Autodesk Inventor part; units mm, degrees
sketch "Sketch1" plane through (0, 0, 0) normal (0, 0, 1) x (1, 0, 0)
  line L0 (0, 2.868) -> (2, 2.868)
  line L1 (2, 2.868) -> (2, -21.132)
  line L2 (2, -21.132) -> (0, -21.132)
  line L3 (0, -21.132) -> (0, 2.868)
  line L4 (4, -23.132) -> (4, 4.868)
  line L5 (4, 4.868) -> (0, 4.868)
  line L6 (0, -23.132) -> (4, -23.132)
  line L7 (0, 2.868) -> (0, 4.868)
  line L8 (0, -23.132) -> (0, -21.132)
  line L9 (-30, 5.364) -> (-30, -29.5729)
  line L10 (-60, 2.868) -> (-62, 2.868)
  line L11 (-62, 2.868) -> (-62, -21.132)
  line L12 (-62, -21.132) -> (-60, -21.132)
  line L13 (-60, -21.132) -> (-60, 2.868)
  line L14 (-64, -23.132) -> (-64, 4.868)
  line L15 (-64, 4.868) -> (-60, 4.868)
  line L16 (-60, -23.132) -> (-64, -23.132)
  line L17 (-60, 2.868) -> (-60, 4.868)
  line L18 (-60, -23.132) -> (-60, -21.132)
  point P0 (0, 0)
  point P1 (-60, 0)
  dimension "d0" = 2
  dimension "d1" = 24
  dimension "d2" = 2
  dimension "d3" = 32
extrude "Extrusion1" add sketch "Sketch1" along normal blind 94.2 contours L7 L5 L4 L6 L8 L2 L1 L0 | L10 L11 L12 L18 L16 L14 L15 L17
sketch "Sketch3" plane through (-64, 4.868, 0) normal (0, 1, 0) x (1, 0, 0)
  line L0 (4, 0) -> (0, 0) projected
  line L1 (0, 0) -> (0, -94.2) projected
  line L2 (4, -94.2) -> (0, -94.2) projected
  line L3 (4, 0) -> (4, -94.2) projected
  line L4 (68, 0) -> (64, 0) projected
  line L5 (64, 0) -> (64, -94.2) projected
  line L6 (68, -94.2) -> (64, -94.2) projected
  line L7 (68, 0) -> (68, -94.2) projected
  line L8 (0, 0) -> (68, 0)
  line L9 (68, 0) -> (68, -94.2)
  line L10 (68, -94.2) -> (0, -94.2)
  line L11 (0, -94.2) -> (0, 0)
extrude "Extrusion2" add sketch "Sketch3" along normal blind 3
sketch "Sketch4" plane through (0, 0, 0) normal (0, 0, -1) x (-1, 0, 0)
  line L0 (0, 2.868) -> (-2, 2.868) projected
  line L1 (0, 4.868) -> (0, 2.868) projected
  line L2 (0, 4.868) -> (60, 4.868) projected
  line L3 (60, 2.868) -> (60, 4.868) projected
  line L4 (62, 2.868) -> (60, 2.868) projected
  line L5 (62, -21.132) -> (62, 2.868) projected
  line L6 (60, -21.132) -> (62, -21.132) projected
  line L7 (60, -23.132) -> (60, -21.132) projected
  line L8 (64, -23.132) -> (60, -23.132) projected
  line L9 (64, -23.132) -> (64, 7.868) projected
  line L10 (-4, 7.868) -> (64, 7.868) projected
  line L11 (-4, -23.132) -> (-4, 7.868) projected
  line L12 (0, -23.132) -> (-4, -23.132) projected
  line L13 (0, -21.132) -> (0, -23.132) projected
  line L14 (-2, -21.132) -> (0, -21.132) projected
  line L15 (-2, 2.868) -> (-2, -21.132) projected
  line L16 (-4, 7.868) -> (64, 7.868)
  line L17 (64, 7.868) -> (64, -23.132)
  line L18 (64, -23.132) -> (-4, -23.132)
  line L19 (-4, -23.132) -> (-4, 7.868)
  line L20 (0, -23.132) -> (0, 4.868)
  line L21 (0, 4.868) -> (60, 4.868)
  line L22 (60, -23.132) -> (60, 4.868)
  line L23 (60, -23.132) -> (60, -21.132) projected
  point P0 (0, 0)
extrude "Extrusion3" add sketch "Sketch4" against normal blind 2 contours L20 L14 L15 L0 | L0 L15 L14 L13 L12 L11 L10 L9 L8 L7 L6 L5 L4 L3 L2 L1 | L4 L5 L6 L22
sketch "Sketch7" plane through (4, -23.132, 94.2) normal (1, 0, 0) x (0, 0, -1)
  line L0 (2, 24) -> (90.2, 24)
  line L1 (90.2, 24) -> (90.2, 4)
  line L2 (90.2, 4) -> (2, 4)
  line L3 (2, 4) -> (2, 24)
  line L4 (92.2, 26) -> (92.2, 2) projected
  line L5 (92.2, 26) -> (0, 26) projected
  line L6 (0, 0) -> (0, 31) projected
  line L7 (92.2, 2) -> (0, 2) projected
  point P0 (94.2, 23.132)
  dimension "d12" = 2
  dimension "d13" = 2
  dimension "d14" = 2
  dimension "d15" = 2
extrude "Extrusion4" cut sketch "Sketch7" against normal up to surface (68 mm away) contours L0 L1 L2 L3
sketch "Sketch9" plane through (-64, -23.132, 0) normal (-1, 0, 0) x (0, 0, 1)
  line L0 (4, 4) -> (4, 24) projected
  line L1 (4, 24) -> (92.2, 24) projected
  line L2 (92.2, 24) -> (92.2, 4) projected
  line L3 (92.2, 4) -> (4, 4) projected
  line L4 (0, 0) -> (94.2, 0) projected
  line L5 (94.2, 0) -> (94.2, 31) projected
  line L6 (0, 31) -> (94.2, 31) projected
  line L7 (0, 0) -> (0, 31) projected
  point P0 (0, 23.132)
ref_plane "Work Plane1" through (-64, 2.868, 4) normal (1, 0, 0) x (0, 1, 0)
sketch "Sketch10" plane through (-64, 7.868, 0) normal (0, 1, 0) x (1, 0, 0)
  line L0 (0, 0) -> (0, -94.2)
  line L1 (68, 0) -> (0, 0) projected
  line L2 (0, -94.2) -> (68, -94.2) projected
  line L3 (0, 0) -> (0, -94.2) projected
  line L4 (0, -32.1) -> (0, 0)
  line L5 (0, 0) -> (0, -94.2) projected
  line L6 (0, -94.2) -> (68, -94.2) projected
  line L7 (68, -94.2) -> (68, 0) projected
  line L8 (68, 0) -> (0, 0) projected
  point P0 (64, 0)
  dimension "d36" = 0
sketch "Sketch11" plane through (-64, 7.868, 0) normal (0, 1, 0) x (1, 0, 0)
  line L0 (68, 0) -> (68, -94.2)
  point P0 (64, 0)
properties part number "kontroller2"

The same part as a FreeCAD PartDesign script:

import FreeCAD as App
import Part
import Sketcher
from FreeCAD import Vector

doc = App.newDocument("Part")
body = doc.addObject("PartDesign::Body", "Body")
body.AllowCompound = True

sketch1 = body.newObject("Sketcher::SketchObject", "Sketch")
sketch1.AttachmentSupport = (doc.getObject("XY_Plane"), [""])
sketch1.MapMode = "FlatFace"
sketch1.addGeometry([
    Part.LineSegment(Vector(0, 4.9, 0), Vector(0, 2.9, 0)),
    Part.LineSegment(Vector(0, 2.9, 0), Vector(2, 2.9, 0)),
    Part.LineSegment(Vector(2, 2.9, 0), Vector(2, -21.1, 0)),
    Part.LineSegment(Vector(2, -21.1, 0), Vector(0, -21.1, 0)),
    Part.LineSegment(Vector(0, -21.1, 0), Vector(0, -23.1, 0)),
    Part.LineSegment(Vector(0, -23.1, 0), Vector(4, -23.1, 0)),
    Part.LineSegment(Vector(4, -23.1, 0), Vector(4, 4.9, 0)),
    Part.LineSegment(Vector(4, 4.9, 0), Vector(0, 4.9, 0)),
    Part.LineSegment(Vector(-62, 2.9, 0), Vector(-60, 2.9, 0)),
    Part.LineSegment(Vector(-60, 2.9, 0), Vector(-60, 4.9, 0)),
    Part.LineSegment(Vector(-60, 4.9, 0), Vector(-64, 4.9, 0)),
    Part.LineSegment(Vector(-64, 4.9, 0), Vector(-64, -23.1, 0)),
    Part.LineSegment(Vector(-64, -23.1, 0), Vector(-60, -23.1, 0)),
    Part.LineSegment(Vector(-60, -23.1, 0), Vector(-60, -21.1, 0)),
    Part.LineSegment(Vector(-60, -21.1, 0), Vector(-62, -21.1, 0)),
    Part.LineSegment(Vector(-62, -21.1, 0), Vector(-62, 2.9, 0)),
], False)
sketch1.addConstraint([
    Sketcher.Constraint("Coincident", 0, 2, 1, 1),
    Sketcher.Constraint("Coincident", 1, 2, 2, 1),
    Sketcher.Constraint("Coincident", 2, 2, 3, 1),
    Sketcher.Constraint("Coincident", 3, 2, 4, 1),
    Sketcher.Constraint("Coincident", 4, 2, 5, 1),
    Sketcher.Constraint("Coincident", 5, 2, 6, 1),
    Sketcher.Constraint("Coincident", 6, 2, 7, 1),
    Sketcher.Constraint("Coincident", 7, 2, 0, 1),
    Sketcher.Constraint("Coincident", 8, 2, 9, 1),
    Sketcher.Constraint("Coincident", 9, 2, 10, 1),
    Sketcher.Constraint("Coincident", 10, 2, 11, 1),
    Sketcher.Constraint("Coincident", 11, 2, 12, 1),
    Sketcher.Constraint("Coincident", 12, 2, 13, 1),
    Sketcher.Constraint("Coincident", 13, 2, 14, 1),
    Sketcher.Constraint("Coincident", 14, 2, 15, 1),
    Sketcher.Constraint("Coincident", 15, 2, 8, 1),
    Sketcher.Constraint("Vertical", 0),
    Sketcher.Constraint("Horizontal", 1),
    Sketcher.Constraint("Vertical", 2),
    Sketcher.Constraint("Horizontal", 3),
    Sketcher.Constraint("Vertical", 4),
    Sketcher.Constraint("Horizontal", 5),
    Sketcher.Constraint("Vertical", 6),
    Sketcher.Constraint("Horizontal", 7),
    Sketcher.Constraint("Horizontal", 8),
    Sketcher.Constraint("Vertical", 9),
    Sketcher.Constraint("Horizontal", 10),
    Sketcher.Constraint("Vertical", 11),
    Sketcher.Constraint("Horizontal", 12),
    Sketcher.Constraint("Vertical", 13),
    Sketcher.Constraint("Horizontal", 14),
    Sketcher.Constraint("Vertical", 15),
    Sketcher.Constraint("PointOnObject", 0, 2, -2),
    Sketcher.Constraint("PointOnObject", 3, 2, -2),
    Sketcher.Constraint("Horizontal", 1, 2, 8, 2),
    Sketcher.Constraint("Horizontal", 7, 2, 9, 2),
    Sketcher.Constraint("Horizontal", 5, 2, 11, 2),
    Sketcher.Constraint("Horizontal", 3, 2, 13, 2),
    Sketcher.Constraint("Vertical", 9, 2, 12, 2),
    Sketcher.Constraint("Equal", 3, 8),
    Sketcher.Constraint("Equal", 7, 10),
    Sketcher.Constraint("Equal", 14, 0),
    Sketcher.Constraint("Equal", 0, 4),
    Sketcher.Constraint("DistanceX", 1, 1, 1, 2, 2.0),
    Sketcher.Constraint("DistanceY", 2, 2, 2, 1, 24.0),
    Sketcher.Constraint("DistanceX", 2, 2, 5, 2, 2.0),
    Sketcher.Constraint("DistanceX", 8, 2, -1, 1, 60.0),
    Sketcher.Constraint("DistanceY", -1, 1, 0, 2, 2.868),
])
pad1 = body.newObject("PartDesign::Pad", "Pad")
pad1.Profile = sketch1
pad1.Length = 94.2

sketch2 = body.newObject("Sketcher::SketchObject", "Sketch001")
sketch2.AttachmentSupport = (doc.getObject("XZ_Plane"), [""])
sketch2.MapMode = "FlatFace"
sketch2.AttachmentOffset = App.Placement(Vector(0, 0, -4.868), App.Rotation())
sketch2.addGeometry([
    Part.LineSegment(Vector(-64, 94, 0), Vector(4, 94, 0)),
    Part.LineSegment(Vector(4, 94, 0), Vector(4, 0, 0)),
    Part.LineSegment(Vector(4, 0, 0), Vector(-64, 0, 0)),
    Part.LineSegment(Vector(-64, 0, 0), Vector(-64, 94, 0)),
], False)
sketch2.addConstraint([
    Sketcher.Constraint("Coincident", 0, 2, 1, 1),
    Sketcher.Constraint("Coincident", 1, 2, 2, 1),
    Sketcher.Constraint("Coincident", 2, 2, 3, 1),
    Sketcher.Constraint("Coincident", 3, 2, 0, 1),
    Sketcher.Constraint("Horizontal", 0),
    Sketcher.Constraint("Vertical", 1),
    Sketcher.Constraint("Horizontal", 2),
    Sketcher.Constraint("Vertical", 3),
    Sketcher.Constraint("PointOnObject", 1, 2, -1),
    Sketcher.Constraint("DistanceX", 0, 1, 0, 2, 68.0),
    Sketcher.Constraint("DistanceY", 1, 2, 1, 1, 94.2),
    Sketcher.Constraint("DistanceX", -1, 1, 0, 2, 4.0),
])
pad2 = body.newObject("PartDesign::Pad", "Pad001")
pad2.Profile = sketch2
pad2.Length = 3
pad2.Reversed = True

sketch3 = body.newObject("Sketcher::SketchObject", "Sketch002")
sketch3.AttachmentSupport = (doc.getObject("XY_Plane"), [""])
sketch3.MapMode = "FlatFace"
sketch3.addGeometry([
    Part.LineSegment(Vector(0, 4.9, 0), Vector(-60, 4.9, 0)),
    Part.LineSegment(Vector(-60, 4.9, 0), Vector(-60, -23.1, 0)),
    Part.LineSegment(Vector(-60, -23.1, 0), Vector(-64, -23.1, 0)),
    Part.LineSegment(Vector(-64, -23.1, 0), Vector(-64, 7.9, 0)),
    Part.LineSegment(Vector(-64, 7.9, 0), Vector(4, 7.9, 0)),
    Part.LineSegment(Vector(4, 7.9, 0), Vector(4, -23.1, 0)),
    Part.LineSegment(Vector(4, -23.1, 0), Vector(0, -23.1, 0)),
    Part.LineSegment(Vector(0, -23.1, 0), Vector(0, 4.9, 0)),
], False)
sketch3.addConstraint([
    Sketcher.Constraint("Coincident", 0, 2, 1, 1),
    Sketcher.Constraint("Coincident", 1, 2, 2, 1),
    Sketcher.Constraint("Coincident", 2, 2, 3, 1),
    Sketcher.Constraint("Coincident", 3, 2, 4, 1),
    Sketcher.Constraint("Coincident", 4, 2, 5, 1),
    Sketcher.Constraint("Coincident", 5, 2, 6, 1),
    Sketcher.Constraint("Coincident", 6, 2, 7, 1),
    Sketcher.Constraint("Coincident", 7, 2, 0, 1),
    Sketcher.Constraint("Horizontal", 0),
    Sketcher.Constraint("Vertical", 1),
    Sketcher.Constraint("Horizontal", 2),
    Sketcher.Constraint("Vertical", 3),
    Sketcher.Constraint("Horizontal", 4),
    Sketcher.Constraint("Vertical", 5),
    Sketcher.Constraint("Horizontal", 6),
    Sketcher.Constraint("Vertical", 7),
    Sketcher.Constraint("PointOnObject", 6, 2, -2),
    Sketcher.Constraint("Horizontal", 2, 2, 5, 2),
    Sketcher.Constraint("Equal", 2, 6),
    Sketcher.Constraint("DistanceX", 0, 2, 0, 1, 60.0),
    Sketcher.Constraint("DistanceX", 2, 2, 2, 1, 4.0),
    Sketcher.Constraint("DistanceY", 1, 2, 1, 1, 28.0),
    Sketcher.Constraint("DistanceY", 3, 1, 3, 2, 31.0),
    Sketcher.Constraint("DistanceY", -1, 1, 0, 2, 4.868),
])
pad3 = body.newObject("PartDesign::Pad", "Pad002")
pad3.Profile = sketch3
pad3.Length = 2

sketch4 = body.newObject("Sketcher::SketchObject", "Sketch003")
sketch4.AttachmentSupport = (doc.getObject("YZ_Plane"), [""])
sketch4.MapMode = "FlatFace"
sketch4.AttachmentOffset = App.Placement(Vector(0, 0, 4), App.Rotation())
sketch4.addGeometry([
    Part.LineSegment(Vector(1, 4, 0), Vector(1, 92, 0)),
    Part.LineSegment(Vector(1, 92, 0), Vector(-19, 92, 0)),
    Part.LineSegment(Vector(-19, 92, 0), Vector(-19, 4, 0)),
    Part.LineSegment(Vector(-19, 4, 0), Vector(1, 4, 0)),
], False)
sketch4.addConstraint([
    Sketcher.Constraint("Coincident", 0, 2, 1, 1),
    Sketcher.Constraint("Coincident", 1, 2, 2, 1),
    Sketcher.Constraint("Coincident", 2, 2, 3, 1),
    Sketcher.Constraint("Coincident", 3, 2, 0, 1),
    Sketcher.Constraint("Vertical", 0),
    Sketcher.Constraint("Horizontal", 1),
    Sketcher.Constraint("Vertical", 2),
    Sketcher.Constraint("Horizontal", 3),
    Sketcher.Constraint("DistanceX", 1, 2, 1, 1, 20.0),
    Sketcher.Constraint("DistanceY", 0, 1, 0, 2, 88.2),
    Sketcher.Constraint("DistanceY", -1, 1, 2, 2, 4.0),
    Sketcher.Constraint("DistanceX", -1, 1, 0, 2, 0.868),
])
pocket1 = body.newObject("PartDesign::Pocket", "Pocket")
pocket1.Profile = sketch4
pocket1.Length = 68

doc.recompute()
